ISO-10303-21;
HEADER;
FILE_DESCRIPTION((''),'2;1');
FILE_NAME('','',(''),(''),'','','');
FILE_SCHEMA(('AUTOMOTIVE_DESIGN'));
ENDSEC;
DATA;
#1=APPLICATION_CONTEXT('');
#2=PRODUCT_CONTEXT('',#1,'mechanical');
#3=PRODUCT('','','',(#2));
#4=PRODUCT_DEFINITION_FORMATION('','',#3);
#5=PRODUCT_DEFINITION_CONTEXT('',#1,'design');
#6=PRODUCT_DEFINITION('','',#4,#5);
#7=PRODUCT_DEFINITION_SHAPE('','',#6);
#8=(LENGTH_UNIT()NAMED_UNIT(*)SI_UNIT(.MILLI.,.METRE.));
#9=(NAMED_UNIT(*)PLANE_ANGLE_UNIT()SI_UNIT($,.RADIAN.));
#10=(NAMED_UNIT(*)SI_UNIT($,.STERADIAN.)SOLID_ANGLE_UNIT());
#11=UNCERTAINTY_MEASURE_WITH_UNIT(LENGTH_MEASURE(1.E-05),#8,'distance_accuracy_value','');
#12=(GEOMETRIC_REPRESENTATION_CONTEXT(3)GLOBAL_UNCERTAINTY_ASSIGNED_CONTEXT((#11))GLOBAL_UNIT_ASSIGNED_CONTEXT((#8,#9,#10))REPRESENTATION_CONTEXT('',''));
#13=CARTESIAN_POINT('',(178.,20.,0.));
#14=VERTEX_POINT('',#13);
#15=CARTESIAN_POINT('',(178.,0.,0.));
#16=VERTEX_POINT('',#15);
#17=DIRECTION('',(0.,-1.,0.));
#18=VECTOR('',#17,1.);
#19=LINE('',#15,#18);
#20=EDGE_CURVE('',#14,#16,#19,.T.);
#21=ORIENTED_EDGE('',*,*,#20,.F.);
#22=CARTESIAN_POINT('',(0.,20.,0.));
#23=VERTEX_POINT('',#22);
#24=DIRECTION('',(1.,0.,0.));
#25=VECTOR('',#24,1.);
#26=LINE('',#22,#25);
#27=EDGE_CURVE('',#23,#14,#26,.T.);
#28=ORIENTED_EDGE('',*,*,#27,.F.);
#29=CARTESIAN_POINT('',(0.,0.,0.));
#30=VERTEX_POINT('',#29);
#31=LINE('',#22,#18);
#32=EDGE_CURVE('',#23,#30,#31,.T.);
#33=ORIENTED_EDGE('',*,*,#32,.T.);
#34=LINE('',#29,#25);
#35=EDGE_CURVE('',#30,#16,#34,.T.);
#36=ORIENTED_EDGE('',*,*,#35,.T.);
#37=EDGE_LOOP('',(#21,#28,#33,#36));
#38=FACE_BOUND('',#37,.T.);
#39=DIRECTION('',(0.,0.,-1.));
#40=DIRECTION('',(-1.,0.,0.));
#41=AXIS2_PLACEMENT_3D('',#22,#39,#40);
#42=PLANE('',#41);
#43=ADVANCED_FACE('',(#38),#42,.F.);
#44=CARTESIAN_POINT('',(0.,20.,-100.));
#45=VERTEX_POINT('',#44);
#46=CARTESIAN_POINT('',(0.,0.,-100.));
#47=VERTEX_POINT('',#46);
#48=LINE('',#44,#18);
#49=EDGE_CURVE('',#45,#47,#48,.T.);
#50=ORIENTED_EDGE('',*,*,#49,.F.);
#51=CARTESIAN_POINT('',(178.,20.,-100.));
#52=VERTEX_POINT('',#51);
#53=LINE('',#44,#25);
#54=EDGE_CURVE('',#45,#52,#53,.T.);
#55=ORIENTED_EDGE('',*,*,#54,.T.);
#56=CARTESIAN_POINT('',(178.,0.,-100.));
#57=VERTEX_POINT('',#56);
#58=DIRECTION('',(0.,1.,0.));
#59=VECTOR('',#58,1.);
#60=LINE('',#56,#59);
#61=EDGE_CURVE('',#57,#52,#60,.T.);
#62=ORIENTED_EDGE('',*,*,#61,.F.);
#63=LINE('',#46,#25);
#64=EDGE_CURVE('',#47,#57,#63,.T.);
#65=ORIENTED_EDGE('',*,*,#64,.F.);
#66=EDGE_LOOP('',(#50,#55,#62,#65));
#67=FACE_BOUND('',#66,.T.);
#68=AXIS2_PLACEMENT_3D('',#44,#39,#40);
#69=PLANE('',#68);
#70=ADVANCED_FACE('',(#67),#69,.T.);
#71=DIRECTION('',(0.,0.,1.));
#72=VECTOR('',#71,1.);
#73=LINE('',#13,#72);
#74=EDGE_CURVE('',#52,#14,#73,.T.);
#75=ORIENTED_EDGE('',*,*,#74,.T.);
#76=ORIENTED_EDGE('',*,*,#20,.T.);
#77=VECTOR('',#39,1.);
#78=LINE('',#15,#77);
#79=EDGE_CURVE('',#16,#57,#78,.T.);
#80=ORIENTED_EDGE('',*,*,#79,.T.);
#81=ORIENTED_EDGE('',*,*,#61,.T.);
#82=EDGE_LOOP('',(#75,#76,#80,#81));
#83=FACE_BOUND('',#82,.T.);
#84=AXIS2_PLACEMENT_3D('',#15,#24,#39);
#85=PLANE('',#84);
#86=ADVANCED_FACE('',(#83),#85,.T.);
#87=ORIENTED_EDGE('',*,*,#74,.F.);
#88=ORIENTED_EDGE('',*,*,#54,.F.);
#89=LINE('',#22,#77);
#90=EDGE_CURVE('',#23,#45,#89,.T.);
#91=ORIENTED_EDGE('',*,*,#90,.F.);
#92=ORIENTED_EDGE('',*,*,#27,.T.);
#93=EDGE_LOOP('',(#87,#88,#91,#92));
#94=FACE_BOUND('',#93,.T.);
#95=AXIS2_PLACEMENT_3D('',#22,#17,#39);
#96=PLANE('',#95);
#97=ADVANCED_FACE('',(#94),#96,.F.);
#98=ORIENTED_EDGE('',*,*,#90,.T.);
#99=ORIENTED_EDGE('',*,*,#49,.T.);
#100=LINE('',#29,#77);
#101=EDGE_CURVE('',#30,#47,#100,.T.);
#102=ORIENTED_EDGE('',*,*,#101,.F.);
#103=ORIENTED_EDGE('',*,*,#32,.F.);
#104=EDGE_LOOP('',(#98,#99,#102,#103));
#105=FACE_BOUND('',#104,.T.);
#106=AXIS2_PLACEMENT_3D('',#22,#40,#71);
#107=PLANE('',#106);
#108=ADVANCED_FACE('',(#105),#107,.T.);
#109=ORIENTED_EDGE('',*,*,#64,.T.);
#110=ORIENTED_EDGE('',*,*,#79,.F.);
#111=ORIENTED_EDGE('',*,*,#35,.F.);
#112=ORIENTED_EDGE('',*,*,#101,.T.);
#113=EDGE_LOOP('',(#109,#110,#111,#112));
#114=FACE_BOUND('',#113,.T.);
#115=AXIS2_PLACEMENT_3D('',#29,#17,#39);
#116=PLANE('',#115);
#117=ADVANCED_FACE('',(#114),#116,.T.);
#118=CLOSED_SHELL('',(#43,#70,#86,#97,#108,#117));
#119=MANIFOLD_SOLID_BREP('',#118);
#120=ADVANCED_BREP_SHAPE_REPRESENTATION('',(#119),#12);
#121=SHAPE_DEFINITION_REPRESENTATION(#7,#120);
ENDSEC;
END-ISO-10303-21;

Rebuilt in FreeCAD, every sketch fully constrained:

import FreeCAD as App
import Part
import Sketcher
from FreeCAD import Vector
Q = App.Units.Quantity

doc = App.newDocument("Part")
body = doc.addObject("PartDesign::Body", "Body")

# Sketch on XZ plane
sketch1 = body.newObject("Sketcher::SketchObject", "Sketch")
sketch1.AttachmentSupport = (doc.getObject("XZ_Plane"), [""])
sketch1.MapMode = "FlatFace"
sketch1.addGeometry([
    Part.LineSegment(Vector(0, -100, 0), Vector(0, 0, 0)),
    Part.LineSegment(Vector(0, 0, 0), Vector(180, 0, 0)),
    Part.LineSegment(Vector(180, 0, 0), Vector(180, -100, 0)),
    Part.LineSegment(Vector(180, -100, 0), Vector(0, -100, 0)),
], False)
sketch1.addConstraint([
    Sketcher.Constraint("Coincident", 0, 2, 1, 1),
    Sketcher.Constraint("Coincident", 1, 2, 2, 1),
    Sketcher.Constraint("Coincident", 2, 2, 3, 1),
    Sketcher.Constraint("Coincident", 3, 2, 0, 1),
    Sketcher.Constraint("Vertical", 0),
    Sketcher.Constraint("Horizontal", 1),
    Sketcher.Constraint("Vertical", 2),
    Sketcher.Constraint("Horizontal", 3),
    Sketcher.Constraint("Coincident", 0, 2, -1, 1),
    Sketcher.Constraint("DistanceX", 1, 1, 1, 2, Q("180 mm")),
    Sketcher.Constraint("DistanceY", 0, 1, 0, 2, Q("100 mm")),
])
pad1 = body.newObject("PartDesign::Pad", "Pad")
pad1.Profile = sketch1
pad1.Length = 20
pad1.Reversed = True

# Sketch on YZ plane
sketch2 = body.newObject("Sketcher::SketchObject", "Sketch001")
sketch2.AttachmentSupport = (doc.getObject("YZ_Plane"), [""])
sketch2.MapMode = "FlatFace"
sketch2.AttachmentOffset = App.Placement(Vector(0, 0, 180), App.Rotation())
sketch2.addGeometry([
    Part.LineSegment(Vector(20, 0, 0), Vector(0, 0, 0)),
    Part.LineSegment(Vector(0, 0, 0), Vector(0, -100, 0)),
    Part.LineSegment(Vector(0, -100, 0), Vector(20, -100, 0)),
    Part.LineSegment(Vector(20, -100, 0), Vector(20, 0, 0)),
], False)
sketch2.addConstraint([
    Sketcher.Constraint("Coincident", 0, 2, 1, 1),
    Sketcher.Constraint("Coincident", 1, 2, 2, 1),
    Sketcher.Constraint("Coincident", 2, 2, 3, 1),
    Sketcher.Constraint("Coincident", 3, 2, 0, 1),
    Sketcher.Constraint("Horizontal", 0),
    Sketcher.Constraint("Vertical", 1),
    Sketcher.Constraint("Horizontal", 2),
    Sketcher.Constraint("Vertical", 3),
    Sketcher.Constraint("Coincident", 0, 2, -1, 1),
    Sketcher.Constraint("DistanceX", 0, 2, 0, 1, Q("20 mm")),
    Sketcher.Constraint("DistanceY", 1, 2, 1, 1, Q("100 mm")),
])
pocket1 = body.newObject("PartDesign::Pocket", "Pocket")
pocket1.Profile = sketch2
pocket1.Length = 2

doc.recompute()
